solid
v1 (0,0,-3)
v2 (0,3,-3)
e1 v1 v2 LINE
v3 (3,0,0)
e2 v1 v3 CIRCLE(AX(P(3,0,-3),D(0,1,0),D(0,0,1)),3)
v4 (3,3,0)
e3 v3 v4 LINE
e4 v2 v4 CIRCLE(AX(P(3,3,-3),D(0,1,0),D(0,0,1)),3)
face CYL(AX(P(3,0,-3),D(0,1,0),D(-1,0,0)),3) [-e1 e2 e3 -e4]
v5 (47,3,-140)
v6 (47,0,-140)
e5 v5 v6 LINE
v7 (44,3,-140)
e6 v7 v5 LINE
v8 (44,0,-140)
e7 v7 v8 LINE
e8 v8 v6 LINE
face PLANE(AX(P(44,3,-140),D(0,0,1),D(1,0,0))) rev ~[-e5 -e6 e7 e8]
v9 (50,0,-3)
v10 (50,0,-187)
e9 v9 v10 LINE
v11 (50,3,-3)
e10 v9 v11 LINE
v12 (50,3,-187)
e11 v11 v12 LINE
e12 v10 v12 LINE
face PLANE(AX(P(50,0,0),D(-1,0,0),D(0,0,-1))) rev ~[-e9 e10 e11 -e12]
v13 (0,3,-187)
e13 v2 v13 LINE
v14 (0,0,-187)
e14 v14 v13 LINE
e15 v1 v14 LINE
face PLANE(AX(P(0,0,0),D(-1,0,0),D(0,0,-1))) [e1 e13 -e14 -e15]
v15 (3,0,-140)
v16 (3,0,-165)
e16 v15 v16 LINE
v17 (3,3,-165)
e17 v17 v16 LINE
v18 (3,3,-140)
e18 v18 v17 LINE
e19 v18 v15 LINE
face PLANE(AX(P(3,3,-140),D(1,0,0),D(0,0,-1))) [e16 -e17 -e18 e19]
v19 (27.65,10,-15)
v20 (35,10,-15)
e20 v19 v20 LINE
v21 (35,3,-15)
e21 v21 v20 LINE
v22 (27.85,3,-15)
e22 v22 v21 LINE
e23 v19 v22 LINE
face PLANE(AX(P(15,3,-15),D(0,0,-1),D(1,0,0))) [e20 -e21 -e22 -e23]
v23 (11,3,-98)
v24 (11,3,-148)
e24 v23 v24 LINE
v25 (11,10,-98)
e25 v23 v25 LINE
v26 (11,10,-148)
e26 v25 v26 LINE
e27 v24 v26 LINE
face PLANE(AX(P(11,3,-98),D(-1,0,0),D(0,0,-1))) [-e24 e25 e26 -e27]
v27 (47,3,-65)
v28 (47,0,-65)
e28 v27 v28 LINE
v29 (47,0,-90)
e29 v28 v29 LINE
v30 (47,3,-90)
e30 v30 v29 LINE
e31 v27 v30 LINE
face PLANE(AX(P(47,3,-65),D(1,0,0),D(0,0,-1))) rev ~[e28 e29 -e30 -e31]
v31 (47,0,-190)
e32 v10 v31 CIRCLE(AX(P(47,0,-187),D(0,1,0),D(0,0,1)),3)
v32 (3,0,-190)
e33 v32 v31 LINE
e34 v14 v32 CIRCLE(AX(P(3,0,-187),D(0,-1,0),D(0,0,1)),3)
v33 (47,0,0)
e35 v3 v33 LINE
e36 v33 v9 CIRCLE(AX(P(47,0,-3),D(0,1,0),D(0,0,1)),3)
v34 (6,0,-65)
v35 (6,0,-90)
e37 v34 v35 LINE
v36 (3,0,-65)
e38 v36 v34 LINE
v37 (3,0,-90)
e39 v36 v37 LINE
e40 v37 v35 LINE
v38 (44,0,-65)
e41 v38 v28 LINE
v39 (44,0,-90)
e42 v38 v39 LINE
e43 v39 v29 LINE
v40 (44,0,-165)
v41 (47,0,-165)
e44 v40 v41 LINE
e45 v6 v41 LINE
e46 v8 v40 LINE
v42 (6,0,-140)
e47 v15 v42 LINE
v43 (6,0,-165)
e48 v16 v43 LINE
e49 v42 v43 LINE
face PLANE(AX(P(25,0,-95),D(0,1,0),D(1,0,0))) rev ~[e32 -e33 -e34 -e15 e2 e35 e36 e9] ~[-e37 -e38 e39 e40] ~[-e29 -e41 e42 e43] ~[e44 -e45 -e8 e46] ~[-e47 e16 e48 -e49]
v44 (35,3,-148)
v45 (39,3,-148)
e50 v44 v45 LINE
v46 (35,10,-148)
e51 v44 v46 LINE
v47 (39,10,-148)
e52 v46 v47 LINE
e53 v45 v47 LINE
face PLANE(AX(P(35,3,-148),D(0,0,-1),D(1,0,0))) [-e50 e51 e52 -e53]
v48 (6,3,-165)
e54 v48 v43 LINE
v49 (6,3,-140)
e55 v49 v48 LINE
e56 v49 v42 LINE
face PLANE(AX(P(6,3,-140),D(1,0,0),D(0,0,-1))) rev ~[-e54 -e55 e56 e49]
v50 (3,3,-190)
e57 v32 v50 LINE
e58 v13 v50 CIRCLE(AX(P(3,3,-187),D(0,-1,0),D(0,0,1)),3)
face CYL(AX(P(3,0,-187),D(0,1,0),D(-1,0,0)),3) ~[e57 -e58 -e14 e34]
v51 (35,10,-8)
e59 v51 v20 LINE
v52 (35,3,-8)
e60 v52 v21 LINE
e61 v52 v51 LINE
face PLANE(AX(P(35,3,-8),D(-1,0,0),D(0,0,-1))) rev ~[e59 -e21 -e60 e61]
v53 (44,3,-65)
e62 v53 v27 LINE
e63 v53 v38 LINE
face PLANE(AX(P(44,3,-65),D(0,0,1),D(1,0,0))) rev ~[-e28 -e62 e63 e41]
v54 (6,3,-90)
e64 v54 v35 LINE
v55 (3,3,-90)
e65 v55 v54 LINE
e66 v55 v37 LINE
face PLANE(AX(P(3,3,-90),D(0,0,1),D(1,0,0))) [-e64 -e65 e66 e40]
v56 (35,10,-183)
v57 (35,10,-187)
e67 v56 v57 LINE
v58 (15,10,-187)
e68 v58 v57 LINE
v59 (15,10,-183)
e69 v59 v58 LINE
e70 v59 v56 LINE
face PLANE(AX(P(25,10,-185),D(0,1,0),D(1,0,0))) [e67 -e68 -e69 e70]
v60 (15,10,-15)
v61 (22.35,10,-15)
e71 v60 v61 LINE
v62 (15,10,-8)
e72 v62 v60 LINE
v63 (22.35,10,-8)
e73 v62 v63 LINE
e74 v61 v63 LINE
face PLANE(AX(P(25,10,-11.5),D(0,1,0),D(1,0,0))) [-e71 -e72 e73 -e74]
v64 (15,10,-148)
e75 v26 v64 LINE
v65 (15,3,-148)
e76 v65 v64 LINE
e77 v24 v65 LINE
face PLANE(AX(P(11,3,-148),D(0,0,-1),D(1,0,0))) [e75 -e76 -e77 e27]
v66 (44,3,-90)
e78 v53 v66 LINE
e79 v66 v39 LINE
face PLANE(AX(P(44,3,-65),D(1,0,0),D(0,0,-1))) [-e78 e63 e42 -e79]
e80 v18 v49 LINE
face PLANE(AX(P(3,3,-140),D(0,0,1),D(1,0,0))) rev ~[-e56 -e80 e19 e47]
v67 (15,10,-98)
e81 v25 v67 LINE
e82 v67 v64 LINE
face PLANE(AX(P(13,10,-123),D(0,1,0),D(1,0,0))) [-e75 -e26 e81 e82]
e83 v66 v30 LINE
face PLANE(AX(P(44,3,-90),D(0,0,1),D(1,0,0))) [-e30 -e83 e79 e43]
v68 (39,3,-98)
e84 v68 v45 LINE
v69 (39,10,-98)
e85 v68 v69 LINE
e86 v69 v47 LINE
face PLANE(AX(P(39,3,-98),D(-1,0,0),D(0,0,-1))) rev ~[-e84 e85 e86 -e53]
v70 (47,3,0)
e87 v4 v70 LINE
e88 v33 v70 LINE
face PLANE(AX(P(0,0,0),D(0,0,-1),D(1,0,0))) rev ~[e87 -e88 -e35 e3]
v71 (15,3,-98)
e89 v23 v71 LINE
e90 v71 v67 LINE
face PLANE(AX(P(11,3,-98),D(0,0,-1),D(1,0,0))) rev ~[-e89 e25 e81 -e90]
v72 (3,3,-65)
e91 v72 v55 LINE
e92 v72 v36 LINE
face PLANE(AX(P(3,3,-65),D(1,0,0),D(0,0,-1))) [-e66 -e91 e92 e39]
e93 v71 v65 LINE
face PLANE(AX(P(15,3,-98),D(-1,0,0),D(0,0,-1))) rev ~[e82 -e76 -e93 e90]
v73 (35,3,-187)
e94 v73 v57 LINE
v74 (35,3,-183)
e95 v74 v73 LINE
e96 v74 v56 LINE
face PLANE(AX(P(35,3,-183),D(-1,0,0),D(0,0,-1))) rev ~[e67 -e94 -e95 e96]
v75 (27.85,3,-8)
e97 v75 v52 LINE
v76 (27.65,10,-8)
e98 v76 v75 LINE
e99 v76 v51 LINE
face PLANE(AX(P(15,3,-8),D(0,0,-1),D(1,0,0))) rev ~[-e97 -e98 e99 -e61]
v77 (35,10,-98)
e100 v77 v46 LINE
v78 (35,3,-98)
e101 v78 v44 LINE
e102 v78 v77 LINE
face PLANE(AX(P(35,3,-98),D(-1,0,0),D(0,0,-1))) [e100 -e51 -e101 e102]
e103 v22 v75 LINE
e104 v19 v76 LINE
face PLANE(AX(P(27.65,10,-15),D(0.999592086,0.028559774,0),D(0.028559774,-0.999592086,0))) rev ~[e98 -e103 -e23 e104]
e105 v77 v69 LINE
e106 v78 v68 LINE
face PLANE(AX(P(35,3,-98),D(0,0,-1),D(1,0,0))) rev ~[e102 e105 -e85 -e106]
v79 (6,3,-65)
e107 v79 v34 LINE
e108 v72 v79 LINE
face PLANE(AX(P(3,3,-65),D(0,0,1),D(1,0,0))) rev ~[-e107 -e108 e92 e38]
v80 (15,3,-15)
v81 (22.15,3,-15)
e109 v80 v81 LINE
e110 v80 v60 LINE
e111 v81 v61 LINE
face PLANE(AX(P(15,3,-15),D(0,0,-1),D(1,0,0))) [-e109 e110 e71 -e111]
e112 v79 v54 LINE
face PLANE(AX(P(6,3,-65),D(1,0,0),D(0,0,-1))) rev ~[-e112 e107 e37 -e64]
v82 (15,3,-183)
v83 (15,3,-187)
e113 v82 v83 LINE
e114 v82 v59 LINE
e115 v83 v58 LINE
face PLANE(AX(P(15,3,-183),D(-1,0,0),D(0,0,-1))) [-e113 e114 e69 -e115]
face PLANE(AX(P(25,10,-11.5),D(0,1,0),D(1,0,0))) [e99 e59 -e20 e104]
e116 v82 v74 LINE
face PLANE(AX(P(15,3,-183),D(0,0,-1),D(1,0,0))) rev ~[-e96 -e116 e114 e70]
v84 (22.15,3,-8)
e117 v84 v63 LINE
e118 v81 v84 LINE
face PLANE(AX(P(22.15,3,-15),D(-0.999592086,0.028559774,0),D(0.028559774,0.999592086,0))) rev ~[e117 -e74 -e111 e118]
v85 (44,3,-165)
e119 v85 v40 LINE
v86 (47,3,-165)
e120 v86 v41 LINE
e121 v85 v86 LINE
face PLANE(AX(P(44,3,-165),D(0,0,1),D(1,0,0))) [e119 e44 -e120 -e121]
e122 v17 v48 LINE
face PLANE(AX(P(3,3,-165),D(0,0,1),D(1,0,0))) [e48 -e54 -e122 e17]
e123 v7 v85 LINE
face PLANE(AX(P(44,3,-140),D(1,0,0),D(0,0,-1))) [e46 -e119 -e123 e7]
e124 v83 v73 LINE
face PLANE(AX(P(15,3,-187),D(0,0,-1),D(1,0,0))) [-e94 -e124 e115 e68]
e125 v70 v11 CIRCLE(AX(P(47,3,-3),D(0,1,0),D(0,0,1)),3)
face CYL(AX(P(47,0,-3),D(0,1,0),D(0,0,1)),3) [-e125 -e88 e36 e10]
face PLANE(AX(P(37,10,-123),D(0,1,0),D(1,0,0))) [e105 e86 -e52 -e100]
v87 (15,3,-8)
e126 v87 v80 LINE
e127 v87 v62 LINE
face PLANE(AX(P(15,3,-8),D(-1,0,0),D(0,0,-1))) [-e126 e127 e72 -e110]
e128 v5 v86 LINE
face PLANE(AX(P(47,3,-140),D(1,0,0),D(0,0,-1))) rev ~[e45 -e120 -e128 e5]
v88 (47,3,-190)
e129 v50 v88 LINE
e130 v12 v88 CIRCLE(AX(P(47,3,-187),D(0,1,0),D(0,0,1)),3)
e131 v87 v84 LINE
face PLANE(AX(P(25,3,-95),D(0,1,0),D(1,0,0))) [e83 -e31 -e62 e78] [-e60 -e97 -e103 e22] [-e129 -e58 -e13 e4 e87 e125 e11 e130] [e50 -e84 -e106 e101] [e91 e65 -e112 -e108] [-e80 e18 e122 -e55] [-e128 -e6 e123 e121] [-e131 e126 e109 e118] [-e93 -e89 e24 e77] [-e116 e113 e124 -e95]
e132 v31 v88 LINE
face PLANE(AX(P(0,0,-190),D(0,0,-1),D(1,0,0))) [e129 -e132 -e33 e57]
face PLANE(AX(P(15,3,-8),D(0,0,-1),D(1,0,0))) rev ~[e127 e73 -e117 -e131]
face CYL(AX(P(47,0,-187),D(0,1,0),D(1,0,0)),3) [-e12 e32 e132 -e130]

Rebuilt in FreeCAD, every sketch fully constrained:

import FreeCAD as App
import Part
import Sketcher
from FreeCAD import Vector
Q = App.Units.Quantity


def edges_at(feature, points):
    """Names of the edges that pass closest to the given points."""
    edges = feature.Shape.Edges
    near = lambda p: min(range(len(edges)), key=lambda i: edges[i].distToShape(Part.Vertex(*p))[0])
    return sorted({f"Edge{near(p) + 1}" for p in points})

doc = App.newDocument("Part")
body = doc.addObject("PartDesign::Body", "Body")

sketch1 = doc.addObject("Sketcher::SketchObject", "Sketch")
body.addObject(sketch1)
sketch1.AttachmentSupport = (doc.XZ_Plane, [""])
sketch1.MapMode = "FlatFace"
sketch1.addGeometry([
    Part.LineSegment(Vector(0, -190, 0), Vector(0, 0, 0)),
    Part.LineSegment(Vector(0, 0, 0), Vector(50, 0, 0)),
    Part.LineSegment(Vector(50, 0, 0), Vector(50, -190, 0)),
    Part.LineSegment(Vector(50, -190, 0), Vector(0, -190, 0)),
], False)
sketch1.addConstraint([
    Sketcher.Constraint("Coincident", 0, 2, 1, 1),
    Sketcher.Constraint("Coincident", 1, 2, 2, 1),
    Sketcher.Constraint("Coincident", 2, 2, 3, 1),
    Sketcher.Constraint("Coincident", 3, 2, 0, 1),
    Sketcher.Constraint("Vertical", 0),
    Sketcher.Constraint("Horizontal", 1),
    Sketcher.Constraint("Vertical", 2),
    Sketcher.Constraint("Horizontal", 3),
    Sketcher.Constraint("Coincident", 0, 2, -1, 1),
    Sketcher.Constraint("DistanceX", 1, 1, 1, 2, Q("50 mm")),
    Sketcher.Constraint("DistanceY", 0, 1, 0, 2, Q("190 mm")),
])
pad1 = doc.addObject("PartDesign::Pad", "Pad")
body.addObject(pad1)
pad1.Profile = sketch1
pad1.Length = 3
pad1.Reversed = True
doc.recompute()

fillet = doc.addObject("PartDesign::Fillet", "Fillet")
body.addObject(fillet)
fillet.Base = (pad1, edges_at(pad1, [
    (0, 1.5, -190),
    (50, 1.5, -190),
    (50, 1.5, 0),
    (0, 1.5, 0),
]))
fillet.Radius = 3

sketch2 = doc.addObject("Sketcher::SketchObject", "Sketch001")
body.addObject(sketch2)
sketch2.AttachmentSupport = (doc.XZ_Plane, [""])
sketch2.MapMode = "FlatFace"
sketch2.AttachmentOffset = App.Placement(Vector(0, 0, -3), App.Rotation())
sketch2.addGeometry([
    Part.LineSegment(Vector(15, -187, 0), Vector(15, -183, 0)),
    Part.LineSegment(Vector(15, -183, 0), Vector(35, -183, 0)),
    Part.LineSegment(Vector(35, -183, 0), Vector(35, -187, 0)),
    Part.LineSegment(Vector(35, -187, 0), Vector(15, -187, 0)),
    Part.LineSegment(Vector(11, -148, 0), Vector(11, -98, 0)),
    Part.LineSegment(Vector(11, -98, 0), Vector(15, -98, 0)),
    Part.LineSegment(Vector(15, -98, 0), Vector(15, -148, 0)),
    Part.LineSegment(Vector(15, -148, 0), Vector(11, -148, 0)),
    Part.LineSegment(Vector(35, -148, 0), Vector(35, -98, 0)),
    Part.LineSegment(Vector(35, -98, 0), Vector(39, -98, 0)),
    Part.LineSegment(Vector(39, -98, 0), Vector(39, -148, 0)),
    Part.LineSegment(Vector(39, -148, 0), Vector(35, -148, 0)),
], False)
sketch2.addConstraint([
    Sketcher.Constraint("Coincident", 0, 2, 1, 1),
    Sketcher.Constraint("Coincident", 1, 2, 2, 1),
    Sketcher.Constraint("Coincident", 2, 2, 3, 1),
    Sketcher.Constraint("Coincident", 3, 2, 0, 1),
    Sketcher.Constraint("Coincident", 4, 2, 5, 1),
    Sketcher.Constraint("Coincident", 5, 2, 6, 1),
    Sketcher.Constraint("Coincident", 6, 2, 7, 1),
    Sketcher.Constraint("Coincident", 7, 2, 4, 1),
    Sketcher.Constraint("Coincident", 8, 2, 9, 1),
    Sketcher.Constraint("Coincident", 9, 2, 10, 1),
    Sketcher.Constraint("Coincident", 10, 2, 11, 1),
    Sketcher.Constraint("Coincident", 11, 2, 8, 1),
    Sketcher.Constraint("Vertical", 0),
    Sketcher.Constraint("Horizontal", 1),
    Sketcher.Constraint("Vertical", 2),
    Sketcher.Constraint("Horizontal", 3),
    Sketcher.Constraint("Vertical", 4),
    Sketcher.Constraint("Horizontal", 5),
    Sketcher.Constraint("Vertical", 6),
    Sketcher.Constraint("Horizontal", 7),
    Sketcher.Constraint("Vertical", 8),
    Sketcher.Constraint("Horizontal", 9),
    Sketcher.Constraint("Vertical", 10),
    Sketcher.Constraint("Horizontal", 11),
    Sketcher.Constraint("Horizontal", 5, 2, 8, 2),
    Sketcher.Constraint("Horizontal", 7, 2, 10, 2),
    Sketcher.Constraint("Vertical", 3, 2, 5, 2),
    Sketcher.Constraint("Vertical", 2, 2, 8, 2),
    Sketcher.Constraint("Equal", 7, 9),
    Sketcher.Constraint("Equal", 11, 0),
    Sketcher.Constraint("DistanceX", 1, 1, 1, 2, Q("20 mm")),
    Sketcher.Constraint("DistanceX", 5, 1, 5, 2, Q("4 mm")),
    Sketcher.Constraint("DistanceY", 4, 1, 4, 2, Q("50 mm")),
    Sketcher.Constraint("DistanceX", -1, 1, 0, 2, Q("15 mm")),
    Sketcher.Constraint("DistanceY", 0, 2, -1, 1, Q("183 mm")),
    Sketcher.Constraint("DistanceY", 4, 2, -1, 1, Q("98 mm")),
])
pad2 = doc.addObject("PartDesign::Pad", "Pad001")
body.addObject(pad2)
pad2.Profile = sketch2
pad2.Length = 7
pad2.Reversed = True

sketch3 = doc.addObject("Sketcher::SketchObject", "Sketch002")
body.addObject(sketch3)
sketch3.AttachmentSupport = (doc.XZ_Plane, [""])
sketch3.MapMode = "FlatFace"
sketch3.AttachmentOffset = App.Placement(Vector(0, 0, -3), App.Rotation())
sketch3.addGeometry([
    Part.LineSegment(Vector(15, -15, 0), Vector(15, -8, 0)),
    Part.LineSegment(Vector(15, -8, 0), Vector(35, -8, 0)),
    Part.LineSegment(Vector(35, -8, 0), Vector(35, -15, 0)),
    Part.LineSegment(Vector(35, -15, 0), Vector(15, -15, 0)),
], False)
sketch3.addConstraint([
    Sketcher.Constraint("Coincident", 0, 2, 1, 1),
    Sketcher.Constraint("Coincident", 1, 2, 2, 1),
    Sketcher.Constraint("Coincident", 2, 2, 3, 1),
    Sketcher.Constraint("Coincident", 3, 2, 0, 1),
    Sketcher.Constraint("Vertical", 0),
    Sketcher.Constraint("Horizontal", 1),
    Sketcher.Constraint("Vertical", 2),
    Sketcher.Constraint("Horizontal", 3),
    Sketcher.Constraint("DistanceX", 1, 1, 1, 2, Q("20 mm")),
    Sketcher.Constraint("DistanceY", 0, 1, 0, 2, Q("7 mm")),
    Sketcher.Constraint("DistanceX", -1, 1, 0, 2, Q("15 mm")),
    Sketcher.Constraint("DistanceY", 0, 2, -1, 1, Q("8 mm")),
])
pad3 = doc.addObject("PartDesign::Pad", "Pad002")
body.addObject(pad3)
pad3.Profile = sketch3
pad3.Length = 7
pad3.Reversed = True

sketch4 = doc.addObject("Sketcher::SketchObject", "Sketch003")
body.addObject(sketch4)
sketch4.AttachmentSupport = (doc.XY_Plane, [""])
sketch4.MapMode = "FlatFace"
sketch4.AttachmentOffset = App.Placement(Vector(0, 0, -15), App.Rotation())
sketch4.addGeometry([
    Part.LineSegment(Vector(22.15, 3, 0), Vector(22.35, 10, 0)),
    Part.LineSegment(Vector(22.35, 10, 0), Vector(27.65, 10, 0)),
    Part.LineSegment(Vector(27.65, 10, 0), Vector(27.85, 3, 0)),
    Part.LineSegment(Vector(27.85, 3, 0), Vector(22.15, 3, 0)),
], False)
sketch4.addConstraint([
    Sketcher.Constraint("Coincident", 0, 2, 1, 1),
    Sketcher.Constraint("Coincident", 1, 2, 2, 1),
    Sketcher.Constraint("Coincident", 2, 2, 3, 1),
    Sketcher.Constraint("Coincident", 3, 2, 0, 1),
    Sketcher.Constraint("Horizontal", 1),
    Sketcher.Constraint("Horizontal", 3),
    Sketcher.Constraint("Equal", 0, 2),
    Sketcher.Constraint("DistanceX", 1, 1, 1, 2, Q("5.3 mm")),
    Sketcher.Constraint("DistanceX", 3, 2, 3, 1, Q("5.7 mm")),
    Sketcher.Constraint("DistanceY", -1, 1, 0, 2, Q("10 mm")),
    Sketcher.Constraint("DistanceY", -1, 1, 2, 2, Q("3 mm")),
    Sketcher.Constraint("DistanceX", -1, 1, 0, 2, Q("22.35 mm")),
])
pocket1 = doc.addObject("PartDesign::Pocket", "Pocket")
body.addObject(pocket1)
pocket1.Profile = sketch4
pocket1.Length = 7
pocket1.Reversed = True

sketch5 = doc.addObject("Sketcher::SketchObject", "Sketch004")
body.addObject(sketch5)
sketch5.AttachmentSupport = (doc.XZ_Plane, [""])
sketch5.MapMode = "FlatFace"
sketch5.AttachmentOffset = App.Placement(Vector(0, 0, -3), App.Rotation())
sketch5.addGeometry([
    Part.LineSegment(Vector(3, -165, 0), Vector(3, -140, 0)),
    Part.LineSegment(Vector(3, -140, 0), Vector(6, -140, 0)),
    Part.LineSegment(Vector(6, -140, 0), Vector(6, -165, 0)),
    Part.LineSegment(Vector(6, -165, 0), Vector(3, -165, 0)),
    Part.LineSegment(Vector(44, -165, 0), Vector(44, -140, 0)),
    Part.LineSegment(Vector(44, -140, 0), Vector(47, -140, 0)),
    Part.LineSegment(Vector(47, -140, 0), Vector(47, -165, 0)),
    Part.LineSegment(Vector(47, -165, 0), Vector(44, -165, 0)),
    Part.LineSegment(Vector(3, -90, 0), Vector(3, -65, 0)),
    Part.LineSegment(Vector(3, -65, 0), Vector(6, -65, 0)),
    Part.LineSegment(Vector(6, -65, 0), Vector(6, -90, 0)),
    Part.LineSegment(Vector(6, -90, 0), Vector(3, -90, 0)),
    Part.LineSegment(Vector(44, -90, 0), Vector(44, -65, 0)),
    Part.LineSegment(Vector(44, -65, 0), Vector(47, -65, 0)),
    Part.LineSegment(Vector(47, -65, 0), Vector(47, -90, 0)),
    Part.LineSegment(Vector(47, -90, 0), Vector(44, -90, 0)),
], False)
sketch5.addConstraint([
    Sketcher.Constraint("Coincident", 0, 2, 1, 1),
    Sketcher.Constraint("Coincident", 1, 2, 2, 1),
    Sketcher.Constraint("Coincident", 2, 2, 3, 1),
    Sketcher.Constraint("Coincident", 3, 2, 0, 1),
    Sketcher.Constraint("Coincident", 4, 2, 5, 1),
    Sketcher.Constraint("Coincident", 5, 2, 6, 1),
    Sketcher.Constraint("Coincident", 6, 2, 7, 1),
    Sketcher.Constraint("Coincident", 7, 2, 4, 1),
    Sketcher.Constraint("Coincident", 8, 2, 9, 1),
    Sketcher.Constraint("Coincident", 9, 2, 10, 1),
    Sketcher.Constraint("Coincident", 10, 2, 11, 1),
    Sketcher.Constraint("Coincident", 11, 2, 8, 1),
    Sketcher.Constraint("Coincident", 12, 2, 13, 1),
    Sketcher.Constraint("Coincident", 13, 2, 14, 1),
    Sketcher.Constraint("Coincident", 14, 2, 15, 1),
    Sketcher.Constraint("Coincident", 15, 2, 12, 1),
    Sketcher.Constraint("Vertical", 0),
    Sketcher.Constraint("Horizontal", 1),
    Sketcher.Constraint("Vertical", 2),
    Sketcher.Constraint("Horizontal", 3),
    Sketcher.Constraint("Vertical", 4),
    Sketcher.Constraint("Horizontal", 5),
    Sketcher.Constraint("Vertical", 6),
    Sketcher.Constraint("Horizontal", 7),
    Sketcher.Constraint("Vertical", 8),
    Sketcher.Constraint("Horizontal", 9),
    Sketcher.Constraint("Vertical", 10),
    Sketcher.Constraint("Horizontal", 11),
    Sketcher.Constraint("Vertical", 12),
    Sketcher.Constraint("Horizontal", 13),
    Sketcher.Constraint("Vertical", 14),
    Sketcher.Constraint("Horizontal", 15),
    Sketcher.Constraint("Horizontal", 1, 2, 4, 2),
    Sketcher.Constraint("Horizontal", 3, 2, 6, 2),
    Sketcher.Constraint("Horizontal", 9, 2, 12, 2),
    Sketcher.Constraint("Horizontal", 11, 2, 14, 2),
    Sketcher.Constraint("Vertical", 3, 2, 8, 2),
    Sketcher.Constraint("Vertical", 2, 2, 9, 2),
    Sketcher.Constraint("Vertical", 7, 2, 12, 2),
    Sketcher.Constraint("Vertical", 6, 2, 13, 2),
    Sketcher.Constraint("Equal", 3, 5),
    Sketcher.Constraint("Equal", 6, 8),
    Sketcher.Constraint("DistanceX", 1, 1, 1, 2, Q("3 mm")),
    Sketcher.Constraint("DistanceY", 0, 1, 0, 2, Q("25 mm")),
    Sketcher.Constraint("DistanceX", -1, 1, 0, 2, Q("3 mm")),
    Sketcher.Constraint("DistanceY", 0, 2, -1, 1, Q("140 mm")),
    Sketcher.Constraint("DistanceX", -1, 1, 4, 2, Q("44 mm")),
    Sketcher.Constraint("DistanceY", 8, 2, -1, 1, Q("65 mm")),
])
pocket2 = doc.addObject("PartDesign::Pocket", "Pocket001")
body.addObject(pocket2)
pocket2.Profile = sketch5
pocket2.Length = 7
pocket2.Reversed = True

doc.recompute()
